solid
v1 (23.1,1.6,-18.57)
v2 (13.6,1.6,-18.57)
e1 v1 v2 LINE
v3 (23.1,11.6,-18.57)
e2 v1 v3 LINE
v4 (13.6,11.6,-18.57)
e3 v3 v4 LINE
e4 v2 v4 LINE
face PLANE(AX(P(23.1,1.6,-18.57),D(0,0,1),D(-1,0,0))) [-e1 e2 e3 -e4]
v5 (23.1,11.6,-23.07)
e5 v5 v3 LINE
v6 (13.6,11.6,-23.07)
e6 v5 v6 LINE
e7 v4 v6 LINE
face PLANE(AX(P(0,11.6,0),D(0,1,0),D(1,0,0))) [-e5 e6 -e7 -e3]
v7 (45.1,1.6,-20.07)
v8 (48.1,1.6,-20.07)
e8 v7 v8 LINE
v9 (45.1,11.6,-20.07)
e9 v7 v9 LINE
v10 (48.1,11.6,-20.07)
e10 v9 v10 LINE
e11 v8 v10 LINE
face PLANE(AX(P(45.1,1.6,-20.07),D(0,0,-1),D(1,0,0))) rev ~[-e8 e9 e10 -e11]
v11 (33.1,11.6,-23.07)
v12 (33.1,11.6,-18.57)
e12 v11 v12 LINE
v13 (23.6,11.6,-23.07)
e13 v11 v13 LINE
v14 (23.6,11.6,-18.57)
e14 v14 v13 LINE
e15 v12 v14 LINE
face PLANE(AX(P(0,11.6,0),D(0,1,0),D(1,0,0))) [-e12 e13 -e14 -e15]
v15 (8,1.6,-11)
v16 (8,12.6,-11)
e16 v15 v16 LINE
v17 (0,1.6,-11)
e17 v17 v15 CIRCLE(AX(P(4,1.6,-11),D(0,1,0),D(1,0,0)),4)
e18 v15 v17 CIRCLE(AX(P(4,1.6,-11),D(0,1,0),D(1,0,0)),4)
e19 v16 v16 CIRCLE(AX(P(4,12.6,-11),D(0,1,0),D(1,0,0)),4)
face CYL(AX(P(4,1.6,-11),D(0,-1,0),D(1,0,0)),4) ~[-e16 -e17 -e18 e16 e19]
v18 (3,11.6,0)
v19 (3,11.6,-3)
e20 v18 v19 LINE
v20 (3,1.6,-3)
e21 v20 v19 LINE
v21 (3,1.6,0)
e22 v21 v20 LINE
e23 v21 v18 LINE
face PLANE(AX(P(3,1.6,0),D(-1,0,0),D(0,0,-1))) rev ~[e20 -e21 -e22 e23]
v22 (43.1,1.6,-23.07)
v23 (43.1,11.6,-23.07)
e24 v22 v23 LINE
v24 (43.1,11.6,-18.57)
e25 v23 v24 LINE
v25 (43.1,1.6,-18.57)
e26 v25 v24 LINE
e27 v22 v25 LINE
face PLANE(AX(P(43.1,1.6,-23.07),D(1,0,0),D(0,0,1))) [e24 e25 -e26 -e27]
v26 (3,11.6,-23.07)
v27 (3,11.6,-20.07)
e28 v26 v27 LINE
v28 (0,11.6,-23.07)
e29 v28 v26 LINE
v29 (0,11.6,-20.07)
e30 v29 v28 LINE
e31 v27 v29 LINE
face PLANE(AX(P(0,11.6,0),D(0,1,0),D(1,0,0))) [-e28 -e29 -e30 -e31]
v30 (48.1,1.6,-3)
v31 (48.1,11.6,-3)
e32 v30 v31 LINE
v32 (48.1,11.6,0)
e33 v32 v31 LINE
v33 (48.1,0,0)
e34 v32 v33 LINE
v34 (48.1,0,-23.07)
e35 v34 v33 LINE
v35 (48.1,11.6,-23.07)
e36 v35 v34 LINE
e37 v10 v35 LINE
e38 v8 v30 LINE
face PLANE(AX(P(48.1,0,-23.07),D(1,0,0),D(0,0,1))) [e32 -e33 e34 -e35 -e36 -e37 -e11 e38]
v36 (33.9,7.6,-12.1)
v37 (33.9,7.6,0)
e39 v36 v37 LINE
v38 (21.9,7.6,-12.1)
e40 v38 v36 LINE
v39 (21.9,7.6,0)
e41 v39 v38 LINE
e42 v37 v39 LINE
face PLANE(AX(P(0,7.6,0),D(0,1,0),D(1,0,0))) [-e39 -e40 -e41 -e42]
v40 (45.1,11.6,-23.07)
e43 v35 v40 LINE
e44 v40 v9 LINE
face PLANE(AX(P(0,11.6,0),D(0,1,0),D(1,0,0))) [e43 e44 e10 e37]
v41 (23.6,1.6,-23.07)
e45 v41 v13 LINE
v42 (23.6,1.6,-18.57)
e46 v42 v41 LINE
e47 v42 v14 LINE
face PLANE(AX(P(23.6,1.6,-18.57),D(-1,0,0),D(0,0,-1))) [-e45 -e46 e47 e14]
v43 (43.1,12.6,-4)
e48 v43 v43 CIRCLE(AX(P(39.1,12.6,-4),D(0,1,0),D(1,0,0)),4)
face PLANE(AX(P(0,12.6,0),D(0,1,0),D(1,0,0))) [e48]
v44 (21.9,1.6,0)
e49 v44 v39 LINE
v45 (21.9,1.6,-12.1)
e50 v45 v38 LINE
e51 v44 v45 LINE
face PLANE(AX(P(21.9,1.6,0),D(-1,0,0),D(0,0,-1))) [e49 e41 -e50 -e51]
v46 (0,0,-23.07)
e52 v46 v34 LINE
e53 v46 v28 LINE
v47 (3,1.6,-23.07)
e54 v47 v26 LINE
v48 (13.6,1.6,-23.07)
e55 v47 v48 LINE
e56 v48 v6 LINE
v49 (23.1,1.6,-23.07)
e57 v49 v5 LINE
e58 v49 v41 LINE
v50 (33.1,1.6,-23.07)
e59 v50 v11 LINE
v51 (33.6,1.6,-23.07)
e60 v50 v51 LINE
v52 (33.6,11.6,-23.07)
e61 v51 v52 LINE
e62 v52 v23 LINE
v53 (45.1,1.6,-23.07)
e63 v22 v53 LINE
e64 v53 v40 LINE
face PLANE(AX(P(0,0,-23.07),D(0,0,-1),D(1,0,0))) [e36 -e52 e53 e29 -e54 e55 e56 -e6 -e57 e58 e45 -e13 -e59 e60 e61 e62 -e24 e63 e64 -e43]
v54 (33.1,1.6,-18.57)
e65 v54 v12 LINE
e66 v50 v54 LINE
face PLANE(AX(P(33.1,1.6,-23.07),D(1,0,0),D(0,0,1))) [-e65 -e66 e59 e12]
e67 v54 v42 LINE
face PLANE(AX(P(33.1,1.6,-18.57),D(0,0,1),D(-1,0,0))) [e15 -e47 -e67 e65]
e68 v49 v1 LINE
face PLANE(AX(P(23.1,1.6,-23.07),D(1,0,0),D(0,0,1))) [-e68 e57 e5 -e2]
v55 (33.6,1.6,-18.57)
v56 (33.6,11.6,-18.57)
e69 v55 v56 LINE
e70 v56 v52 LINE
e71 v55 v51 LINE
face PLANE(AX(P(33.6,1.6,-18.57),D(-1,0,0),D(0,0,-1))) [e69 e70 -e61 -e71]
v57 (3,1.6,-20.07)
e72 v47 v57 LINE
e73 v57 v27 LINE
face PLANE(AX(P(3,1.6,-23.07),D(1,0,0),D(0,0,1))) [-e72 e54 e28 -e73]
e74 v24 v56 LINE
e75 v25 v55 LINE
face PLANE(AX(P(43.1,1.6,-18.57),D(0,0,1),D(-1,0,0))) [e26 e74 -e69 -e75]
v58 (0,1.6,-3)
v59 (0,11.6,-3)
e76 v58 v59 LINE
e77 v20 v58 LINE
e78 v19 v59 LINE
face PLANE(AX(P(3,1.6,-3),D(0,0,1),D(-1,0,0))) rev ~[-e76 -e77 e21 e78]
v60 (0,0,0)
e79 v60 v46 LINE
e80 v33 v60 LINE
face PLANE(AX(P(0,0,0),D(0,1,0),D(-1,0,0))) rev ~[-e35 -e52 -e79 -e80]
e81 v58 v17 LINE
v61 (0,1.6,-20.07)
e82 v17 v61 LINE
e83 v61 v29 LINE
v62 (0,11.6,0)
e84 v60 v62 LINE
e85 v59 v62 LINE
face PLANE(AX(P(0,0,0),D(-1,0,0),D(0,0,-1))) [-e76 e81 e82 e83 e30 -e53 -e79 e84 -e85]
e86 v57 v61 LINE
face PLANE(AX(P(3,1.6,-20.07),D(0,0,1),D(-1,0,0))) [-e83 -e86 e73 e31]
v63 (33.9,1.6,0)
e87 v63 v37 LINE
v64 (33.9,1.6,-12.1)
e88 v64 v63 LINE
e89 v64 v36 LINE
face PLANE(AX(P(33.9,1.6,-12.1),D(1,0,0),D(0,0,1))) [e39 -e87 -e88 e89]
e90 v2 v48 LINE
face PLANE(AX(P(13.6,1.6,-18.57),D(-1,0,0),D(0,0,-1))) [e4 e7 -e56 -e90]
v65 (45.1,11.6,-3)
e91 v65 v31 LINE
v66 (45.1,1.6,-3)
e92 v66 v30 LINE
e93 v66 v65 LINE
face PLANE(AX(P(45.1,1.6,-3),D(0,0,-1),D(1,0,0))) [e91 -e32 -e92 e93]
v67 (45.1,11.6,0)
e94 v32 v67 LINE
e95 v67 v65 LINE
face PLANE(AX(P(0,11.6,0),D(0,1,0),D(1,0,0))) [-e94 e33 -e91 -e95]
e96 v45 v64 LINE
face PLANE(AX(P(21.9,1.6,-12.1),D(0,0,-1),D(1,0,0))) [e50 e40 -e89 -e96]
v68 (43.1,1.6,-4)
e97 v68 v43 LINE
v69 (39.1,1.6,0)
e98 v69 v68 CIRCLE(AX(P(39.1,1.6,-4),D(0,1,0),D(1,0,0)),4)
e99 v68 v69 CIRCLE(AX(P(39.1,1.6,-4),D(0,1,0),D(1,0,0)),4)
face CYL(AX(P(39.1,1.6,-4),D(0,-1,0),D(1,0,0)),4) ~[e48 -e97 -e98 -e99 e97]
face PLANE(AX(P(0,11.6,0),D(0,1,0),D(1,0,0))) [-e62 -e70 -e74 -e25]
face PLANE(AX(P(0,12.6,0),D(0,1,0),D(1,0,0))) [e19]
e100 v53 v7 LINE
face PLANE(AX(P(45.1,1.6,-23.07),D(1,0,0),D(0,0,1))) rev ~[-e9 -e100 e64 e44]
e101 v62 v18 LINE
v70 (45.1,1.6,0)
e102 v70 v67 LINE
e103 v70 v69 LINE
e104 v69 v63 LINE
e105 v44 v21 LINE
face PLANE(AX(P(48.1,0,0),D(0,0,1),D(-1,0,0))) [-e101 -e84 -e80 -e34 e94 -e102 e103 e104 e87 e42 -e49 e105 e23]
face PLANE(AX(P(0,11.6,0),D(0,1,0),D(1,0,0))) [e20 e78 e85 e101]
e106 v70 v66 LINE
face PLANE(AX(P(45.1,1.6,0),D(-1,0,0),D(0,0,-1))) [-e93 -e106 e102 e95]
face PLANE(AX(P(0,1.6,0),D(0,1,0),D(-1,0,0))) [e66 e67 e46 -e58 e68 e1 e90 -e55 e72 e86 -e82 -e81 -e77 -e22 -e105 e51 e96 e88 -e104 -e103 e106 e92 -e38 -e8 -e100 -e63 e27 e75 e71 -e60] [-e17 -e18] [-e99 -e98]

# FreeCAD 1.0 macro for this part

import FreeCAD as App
import Part
import Sketcher

V = App.Vector
Q = App.Units.Quantity

doc = App.newDocument("Part")
params = doc.addObject("Spreadsheet::Sheet", "Params")
for row, (alias, value) in enumerate([
    ("sketch1_width", "48.1 mm"),
    ("sketch1_height", "23.07 mm"),
    ("pad1_length", "1.6 mm"),
    ("sketch2_width", "9.5 mm"),
    ("sketch2_height", "4.5 mm"),
    ("pad2_length", "10 mm"),
    ("sketch3_width", "3 mm"),
    ("pad3_length", "10 mm"),
    ("sketch4_diameter", "8 mm"),
    ("pad4_length", "11 mm"),
    ("sketch5_width", "12 mm"),
    ("sketch5_height", "12.1 mm"),
    ("pad5_length", "6 mm"),
], start=1):
    params.set(f"A{row}", alias)
    params.set(f"B{row}", "=" + value)
    params.setAlias(f"B{row}", alias)

body = doc.addObject("PartDesign::Body", "Body")

sketch1 = doc.addObject("Sketcher::SketchObject", "Sketch")
body.addObject(sketch1)
sketch1.AttachmentSupport = (doc.XZ_Plane, [""])
sketch1.MapMode = "FlatFace"
sketch1.addGeometry([
    Part.LineSegment(V(48, -23, 0), V(0, -23, 0)),
    Part.LineSegment(V(0, -23, 0), V(0, 0, 0)),
    Part.LineSegment(V(0, 0, 0), V(48, 0, 0)),
    Part.LineSegment(V(48, 0, 0), V(48, -23, 0)),
], False)
sketch1.addConstraint([
    Sketcher.Constraint("Coincident", 0, 2, 1, 1),
    Sketcher.Constraint("Coincident", 1, 2, 2, 1),
    Sketcher.Constraint("Coincident", 2, 2, 3, 1),
    Sketcher.Constraint("Coincident", 3, 2, 0, 1),
    Sketcher.Constraint("Horizontal", 0),
    Sketcher.Constraint("Vertical", 1),
    Sketcher.Constraint("Horizontal", 2),
    Sketcher.Constraint("Vertical", 3),
    Sketcher.Constraint("Coincident", 1, 2, -1, 1),
    Sketcher.Constraint("DistanceX", 0, 2, 0, 1, Q("48.1 mm")),
    Sketcher.Constraint("DistanceY", 1, 1, 1, 2, Q("23.07 mm")),
])
sketch1.setExpression("Constraints[9]", "Params.sketch1_width")
sketch1.setExpression("Constraints[10]", "Params.sketch1_height")
pad1 = doc.addObject("PartDesign::Pad", "Pad")
body.addObject(pad1)
pad1.Profile = sketch1
pad1.setExpression("Length", "Params.pad1_length")
pad1.Reversed = True

sketch2 = doc.addObject("Sketcher::SketchObject", "Sketch001")
body.addObject(sketch2)
sketch2.AttachmentSupport = (doc.XZ_Plane, [""])
sketch2.MapMode = "FlatFace"
sketch2.AttachmentOffset = App.Placement(V(0, 0, -1.6), App.Rotation())
sketch2.addGeometry([
    Part.LineSegment(V(43.1, -23.1, 0), V(33.6, -23.1, 0)),
    Part.LineSegment(V(33.6, -23.1, 0), V(33.6, -18.6, 0)),
    Part.LineSegment(V(33.6, -18.6, 0), V(43.1, -18.6, 0)),
    Part.LineSegment(V(43.1, -18.6, 0), V(43.1, -23.1, 0)),
    Part.LineSegment(V(23.1, -18.6, 0), V(23.1, -23.1, 0)),
    Part.LineSegment(V(23.1, -23.1, 0), V(13.6, -23.1, 0)),
    Part.LineSegment(V(13.6, -23.1, 0), V(13.6, -18.6, 0)),
    Part.LineSegment(V(13.6, -18.6, 0), V(23.1, -18.6, 0)),
    Part.LineSegment(V(33.1, -18.6, 0), V(33.1, -23.1, 0)),
    Part.LineSegment(V(33.1, -23.1, 0), V(23.6, -23.1, 0)),
    Part.LineSegment(V(23.6, -23.1, 0), V(23.6, -18.6, 0)),
    Part.LineSegment(V(23.6, -18.6, 0), V(33.1, -18.6, 0)),
], False)
sketch2.addConstraint([
    Sketcher.Constraint("Coincident", 0, 2, 1, 1),
    Sketcher.Constraint("Coincident", 1, 2, 2, 1),
    Sketcher.Constraint("Coincident", 2, 2, 3, 1),
    Sketcher.Constraint("Coincident", 3, 2, 0, 1),
    Sketcher.Constraint("Coincident", 4, 2, 5, 1),
    Sketcher.Constraint("Coincident", 5, 2, 6, 1),
    Sketcher.Constraint("Coincident", 6, 2, 7, 1),
    Sketcher.Constraint("Coincident", 7, 2, 4, 1),
    Sketcher.Constraint("Coincident", 8, 2, 9, 1),
    Sketcher.Constraint("Coincident", 9, 2, 10, 1),
    Sketcher.Constraint("Coincident", 10, 2, 11, 1),
    Sketcher.Constraint("Coincident", 11, 2, 8, 1),
    Sketcher.Constraint("Horizontal", 0),
    Sketcher.Constraint("Vertical", 1),
    Sketcher.Constraint("Horizontal", 2),
    Sketcher.Constraint("Vertical", 3),
    Sketcher.Constraint("Vertical", 4),
    Sketcher.Constraint("Horizontal", 5),
    Sketcher.Constraint("Vertical", 6),
    Sketcher.Constraint("Horizontal", 7),
    Sketcher.Constraint("Vertical", 8),
    Sketcher.Constraint("Horizontal", 9),
    Sketcher.Constraint("Vertical", 10),
    Sketcher.Constraint("Horizontal", 11),
    Sketcher.Constraint("Horizontal", 3, 2, 4, 2),
    Sketcher.Constraint("Horizontal", 2, 2, 6, 2),
    Sketcher.Constraint("Horizontal", 5, 2, 8, 2),
    Sketcher.Constraint("Horizontal", 7, 2, 10, 2),
    Sketcher.Constraint("Equal", 2, 5),
    Sketcher.Constraint("Equal", 7, 9),
    Sketcher.Constraint("DistanceX", 0, 2, 0, 1, Q("9.5 mm")),
    Sketcher.Constraint("DistanceY", 1, 1, 1, 2, Q("4.5 mm")),
    Sketcher.Constraint("DistanceX", 8, 2, 0, 2, Q("0.5 mm")),
    Sketcher.Constraint("DistanceX", 4, 2, 9, 2, Q("0.5 mm")),
    Sketcher.Constraint("DistanceX", -1, 1, 0, 2, Q("33.6 mm")),
    Sketcher.Constraint("DistanceY", 0, 2, -1, 1, Q("23.07 mm")),
])
sketch2.setExpression("Constraints[30]", "Params.sketch2_width")
sketch2.setExpression("Constraints[31]", "Params.sketch2_height")
pad2 = doc.addObject("PartDesign::Pad", "Pad001")
body.addObject(pad2)
pad2.Profile = sketch2
pad2.setExpression("Length", "Params.pad2_length")
pad2.Reversed = True

sketch3 = doc.addObject("Sketcher::SketchObject", "Sketch002")
body.addObject(sketch3)
sketch3.AttachmentSupport = (doc.XZ_Plane, [""])
sketch3.MapMode = "FlatFace"
sketch3.AttachmentOffset = App.Placement(V(0, 0, -1.6), App.Rotation())
sketch3.addGeometry([
    Part.LineSegment(V(45.1, 0, 0), V(48.1, 0, 0)),
    Part.LineSegment(V(48.1, 0, 0), V(48.1, -3, 0)),
    Part.LineSegment(V(48.1, -3, 0), V(45.1, -3, 0)),
    Part.LineSegment(V(45.1, -3, 0), V(45.1, 0, 0)),
    Part.LineSegment(V(45.1, -20.1, 0), V(48.1, -20.1, 0)),
    Part.LineSegment(V(48.1, -20.1, 0), V(48.1, -23.1, 0)),
    Part.LineSegment(V(48.1, -23.1, 0), V(45.1, -23.1, 0)),
    Part.LineSegment(V(45.1, -23.1, 0), V(45.1, -20.1, 0)),
    Part.LineSegment(V(3, -23.1, 0), V(0, -23.1, 0)),
    Part.LineSegment(V(0, -23.1, 0), V(0, -20.1, 0)),
    Part.LineSegment(V(0, -20.1, 0), V(3, -20.1, 0)),
    Part.LineSegment(V(3, -20.1, 0), V(3, -23.1, 0)),
    Part.LineSegment(V(0, -3, 0), V(0, 0, 0)),
    Part.LineSegment(V(0, 0, 0), V(3, 0, 0)),
    Part.LineSegment(V(3, 0, 0), V(3, -3, 0)),
    Part.LineSegment(V(3, -3, 0), V(0, -3, 0)),
], False)
sketch3.addConstraint([
    Sketcher.Constraint("Coincident", 0, 2, 1, 1),
    Sketcher.Constraint("Coincident", 1, 2, 2, 1),
    Sketcher.Constraint("Coincident", 2, 2, 3, 1),
    Sketcher.Constraint("Coincident", 3, 2, 0, 1),
    Sketcher.Constraint("Coincident", 4, 2, 5, 1),
    Sketcher.Constraint("Coincident", 5, 2, 6, 1),
    Sketcher.Constraint("Coincident", 6, 2, 7, 1),
    Sketcher.Constraint("Coincident", 7, 2, 4, 1),
    Sketcher.Constraint("Coincident", 8, 2, 9, 1),
    Sketcher.Constraint("Coincident", 9, 2, 10, 1),
    Sketcher.Constraint("Coincident", 10, 2, 11, 1),
    Sketcher.Constraint("Coincident", 11, 2, 8, 1),
    Sketcher.Constraint("Coincident", 12, 2, 13, 1),
    Sketcher.Constraint("Coincident", 13, 2, 14, 1),
    Sketcher.Constraint("Coincident", 14, 2, 15, 1),
    Sketcher.Constraint("Coincident", 15, 2, 12, 1),
    Sketcher.Constraint("Horizontal", 0),
    Sketcher.Constraint("Vertical", 1),
    Sketcher.Constraint("Horizontal", 2),
    Sketcher.Constraint("Vertical", 3),
    Sketcher.Constraint("Horizontal", 4),
    Sketcher.Constraint("Vertical", 5),
    Sketcher.Constraint("Horizontal", 6),
    Sketcher.Constraint("Vertical", 7),
    Sketcher.Constraint("Horizontal", 8),
    Sketcher.Constraint("Vertical", 9),
    Sketcher.Constraint("Horizontal", 10),
    Sketcher.Constraint("Vertical", 11),
    Sketcher.Constraint("Vertical", 12),
    Sketcher.Constraint("Horizontal", 13),
    Sketcher.Constraint("Vertical", 14),
    Sketcher.Constraint("Horizontal", 15),
    Sketcher.Constraint("Coincident", 12, 2, -1, 1),
    Sketcher.Constraint("PointOnObject", 0, 2, -1),
    Sketcher.Constraint("PointOnObject", 8, 2, -2),
    Sketcher.Constraint("Horizontal", 6, 2, 8, 2),
    Sketcher.Constraint("Horizontal", 7, 2, 9, 2),
    Sketcher.Constraint("Horizontal", 2, 2, 14, 2),
    Sketcher.Constraint("Vertical", 1, 2, 4, 2),
    Sketcher.Constraint("Vertical", 3, 2, 6, 2),
    Sketcher.Constraint("Vertical", 11, 2, 13, 2),
    Sketcher.Constraint("Equal", 6, 8),
    Sketcher.Constraint("Equal", 15, 1),
    Sketcher.Constraint("Equal", 3, 5),
    Sketcher.Constraint("DistanceX", 0, 1, 0, 2, Q("3 mm")),
    Sketcher.Constraint("DistanceX", -1, 1, 0, 2, Q("48.1 mm")),
    Sketcher.Constraint("DistanceY", 4, 2, -1, 1, Q("20.07 mm")),
])
sketch3.setExpression("Constraints[44]", "Params.sketch3_width")
pad3 = doc.addObject("PartDesign::Pad", "Pad002")
body.addObject(pad3)
pad3.Profile = sketch3
pad3.setExpression("Length", "Params.pad3_length")
pad3.Reversed = True

sketch4 = doc.addObject("Sketcher::SketchObject", "Sketch003")
body.addObject(sketch4)
sketch4.AttachmentSupport = (doc.XZ_Plane, [""])
sketch4.MapMode = "FlatFace"
sketch4.AttachmentOffset = App.Placement(V(0, 0, -1.6), App.Rotation())
sketch4.addGeometry([
    Part.Circle(V(39.1, -4, 0), V(0, 0, 1), 4),
    Part.Circle(V(4, -11, 0), V(0, 0, 1), 4),
], False)
sketch4.addConstraint([
    Sketcher.Constraint("Equal", 0, 1),
    Sketcher.Constraint("Diameter", 0, Q("8 mm")),
    Sketcher.Constraint("DistanceY", 0, 3, -1, 1, Q("4 mm")),
    Sketcher.Constraint("DistanceX", -1, 1, 1, 3, Q("4 mm")),
    Sketcher.Constraint("DistanceY", 1, 3, -1, 1, Q("11 mm")),
    Sketcher.Constraint("DistanceX", -1, 1, 0, 3, Q("39.1 mm")),
])
sketch4.setExpression("Constraints[1]", "Params.sketch4_diameter")
pad4 = doc.addObject("PartDesign::Pad", "Pad003")
body.addObject(pad4)
pad4.Profile = sketch4
pad4.setExpression("Length", "Params.pad4_length")
pad4.Reversed = True

sketch5 = doc.addObject("Sketcher::SketchObject", "Sketch004")
body.addObject(sketch5)
sketch5.AttachmentSupport = (doc.XZ_Plane, [""])
sketch5.MapMode = "FlatFace"
sketch5.AttachmentOffset = App.Placement(V(0, 0, -1.6), App.Rotation())
sketch5.addGeometry([
    Part.LineSegment(V(34, -12, 0), V(22, -12, 0)),
    Part.LineSegment(V(22, -12, 0), V(22, 0, 0)),
    Part.LineSegment(V(22, 0, 0), V(34, 0, 0)),
    Part.LineSegment(V(34, 0, 0), V(34, -12, 0)),
], False)
sketch5.addConstraint([
    Sketcher.Constraint("Coincident", 0, 2, 1, 1),
    Sketcher.Constraint("Coincident", 1, 2, 2, 1),
    Sketcher.Constraint("Coincident", 2, 2, 3, 1),
    Sketcher.Constraint("Coincident", 3, 2, 0, 1),
    Sketcher.Constraint("Horizontal", 0),
    Sketcher.Constraint("Vertical", 1),
    Sketcher.Constraint("Horizontal", 2),
    Sketcher.Constraint("Vertical", 3),
    Sketcher.Constraint("PointOnObject", 1, 2, -1),
    Sketcher.Constraint("DistanceX", 0, 2, 0, 1, Q("12 mm")),
    Sketcher.Constraint("DistanceY", 1, 1, 1, 2, Q("12.1 mm")),
    Sketcher.Constraint("DistanceX", -1, 1, 0, 2, Q("21.9 mm")),
])
sketch5.setExpression("Constraints[9]", "Params.sketch5_width")
sketch5.setExpression("Constraints[10]", "Params.sketch5_height")
pad5 = doc.addObject("PartDesign::Pad", "Pad004")
body.addObject(pad5)
pad5.Profile = sketch5
pad5.setExpression("Length", "Params.pad5_length")
pad5.Reversed = True

doc.recompute()
